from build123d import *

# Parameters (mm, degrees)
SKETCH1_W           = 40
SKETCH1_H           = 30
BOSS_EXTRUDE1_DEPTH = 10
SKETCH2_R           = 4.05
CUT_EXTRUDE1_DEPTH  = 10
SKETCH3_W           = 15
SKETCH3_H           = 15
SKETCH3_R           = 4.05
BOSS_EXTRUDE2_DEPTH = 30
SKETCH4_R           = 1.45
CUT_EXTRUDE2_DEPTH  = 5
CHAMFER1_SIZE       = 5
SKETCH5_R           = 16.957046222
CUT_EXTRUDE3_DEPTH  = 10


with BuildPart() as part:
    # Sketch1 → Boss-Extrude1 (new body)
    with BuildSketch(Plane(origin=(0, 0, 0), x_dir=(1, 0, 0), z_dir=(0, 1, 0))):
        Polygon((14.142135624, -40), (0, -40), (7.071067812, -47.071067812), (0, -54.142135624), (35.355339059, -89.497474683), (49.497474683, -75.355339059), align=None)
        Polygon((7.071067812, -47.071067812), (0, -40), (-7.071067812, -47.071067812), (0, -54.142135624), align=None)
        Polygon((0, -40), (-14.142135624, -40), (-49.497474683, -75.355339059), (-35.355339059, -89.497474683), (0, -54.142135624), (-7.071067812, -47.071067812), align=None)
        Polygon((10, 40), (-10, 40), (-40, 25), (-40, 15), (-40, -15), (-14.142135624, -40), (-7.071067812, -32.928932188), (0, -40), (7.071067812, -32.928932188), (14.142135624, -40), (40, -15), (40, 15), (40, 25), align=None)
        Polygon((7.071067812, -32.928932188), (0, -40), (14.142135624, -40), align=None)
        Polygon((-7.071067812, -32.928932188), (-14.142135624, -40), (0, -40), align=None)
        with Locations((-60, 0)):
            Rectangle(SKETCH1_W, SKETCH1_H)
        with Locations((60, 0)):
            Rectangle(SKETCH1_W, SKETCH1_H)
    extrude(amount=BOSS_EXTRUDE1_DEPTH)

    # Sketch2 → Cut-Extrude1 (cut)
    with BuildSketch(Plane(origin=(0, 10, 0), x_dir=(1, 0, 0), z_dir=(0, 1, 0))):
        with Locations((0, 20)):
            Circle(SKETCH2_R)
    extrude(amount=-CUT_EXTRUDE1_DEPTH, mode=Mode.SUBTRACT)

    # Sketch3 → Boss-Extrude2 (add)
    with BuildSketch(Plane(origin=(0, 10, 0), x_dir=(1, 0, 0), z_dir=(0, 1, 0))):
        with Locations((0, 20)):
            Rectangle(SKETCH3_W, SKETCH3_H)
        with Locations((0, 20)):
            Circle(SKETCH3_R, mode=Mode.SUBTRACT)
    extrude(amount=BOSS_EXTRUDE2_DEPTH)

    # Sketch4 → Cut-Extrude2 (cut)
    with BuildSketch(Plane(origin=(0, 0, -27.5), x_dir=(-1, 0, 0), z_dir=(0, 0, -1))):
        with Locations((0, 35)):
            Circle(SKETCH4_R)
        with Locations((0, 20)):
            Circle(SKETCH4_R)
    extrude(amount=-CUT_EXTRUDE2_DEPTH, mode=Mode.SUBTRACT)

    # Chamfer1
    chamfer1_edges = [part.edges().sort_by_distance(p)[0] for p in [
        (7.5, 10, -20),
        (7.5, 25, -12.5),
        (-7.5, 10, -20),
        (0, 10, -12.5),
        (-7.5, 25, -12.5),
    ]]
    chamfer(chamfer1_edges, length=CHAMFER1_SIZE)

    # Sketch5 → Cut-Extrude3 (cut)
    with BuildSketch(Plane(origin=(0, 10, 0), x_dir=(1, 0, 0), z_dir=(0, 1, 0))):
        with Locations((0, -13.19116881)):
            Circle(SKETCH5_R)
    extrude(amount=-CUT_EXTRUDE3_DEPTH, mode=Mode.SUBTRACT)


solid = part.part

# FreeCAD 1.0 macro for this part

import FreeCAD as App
import Part
import Sketcher


def edges_at(feature, points):
    """Names of the edges that pass closest to the given points."""
    edges = feature.Shape.Edges
    near = lambda p: min(range(len(edges)), key=lambda i: edges[i].distToShape(Part.Vertex(*p))[0])
    return sorted({f"Edge{near(p) + 1}" for p in points})


def add_polygon(sketch, points):
    """Adds a closed chain of lines whose ends are joined by coincident constraints."""
    first, n = sketch.GeometryCount, len(points)
    for a, b in zip(points, points[1:] + points[:1]):
        sketch.addGeometry(Part.LineSegment(App.Vector(*a, 0), App.Vector(*b, 0)), False)
    for i in range(n):
        sketch.addConstraint(Sketcher.Constraint("Coincident", first + i, 2, first + (i + 1) % n, 1))

doc = App.newDocument("Part")
body = doc.addObject("PartDesign::Body", "Body")

# Sketch on XZ plane
sketch1 = doc.addObject("Sketcher::SketchObject", "Sketch")
body.addObject(sketch1)
sketch1.AttachmentSupport = (doc.XZ_Plane, [""])
sketch1.MapMode = "FlatFace"
add_polygon(sketch1, [(-40, 15), (-14.142136, 40), (-49.497475, 75.355339), (-35.355339, 89.497475), (0, 54.142136), (35.355339, 89.497475), (49.497475, 75.355339), (14.142136, 40), (40, 15), (80, 15), (80, -15), (40, -15), (40, -25), (10, -40), (-10, -40), (-40, -25), (-40, -15), (-80, -15), (-80, 15)])  # lines 0-18
sketch1.addConstraint(Sketcher.Constraint("Horizontal", 8))
sketch1.addConstraint(Sketcher.Constraint("Vertical", 9))
sketch1.addConstraint(Sketcher.Constraint("Horizontal", 10))
sketch1.addConstraint(Sketcher.Constraint("Vertical", 11))
sketch1.addConstraint(Sketcher.Constraint("Horizontal", 13))
sketch1.addConstraint(Sketcher.Constraint("Vertical", 15))
sketch1.addConstraint(Sketcher.Constraint("Horizontal", 16))
sketch1.addConstraint(Sketcher.Constraint("Vertical", 17))
sketch1.addConstraint(Sketcher.Constraint("Horizontal", 18))
sketch1.addConstraint(Sketcher.Constraint("Symmetric", 7, 2, 15, 2, -1, 1))
sketch1.addConstraint(Sketcher.Constraint("Symmetric", 9, 2, 17, 2, -1, 1))
sketch1.addConstraint(Sketcher.Constraint("Symmetric", 2, 2, 4, 2, -2))
sketch1.addConstraint(Sketcher.Constraint("Symmetric", 1, 2, 5, 2, -2))
sketch1.addConstraint(Sketcher.Constraint("Symmetric", 0, 2, 6, 2, -2))
sketch1.addConstraint(Sketcher.Constraint("Symmetric", 11, 2, 14, 2, -2))
sketch1.addConstraint(Sketcher.Constraint("Symmetric", 7, 2, 18, 2, -2))
sketch1.addConstraint(Sketcher.Constraint("PointOnObject", 3, 2, -2))
sketch1.addConstraint(Sketcher.Constraint("Perpendicular", 1, 2))
sketch1.addConstraint(Sketcher.Constraint("Perpendicular", 2, 3))
sketch1.addConstraint(Sketcher.Constraint("Perpendicular", 3, 4))
sketch1.addConstraint(Sketcher.Constraint("Equal", 1, 3))
sketch1.addConstraint(Sketcher.Constraint("Equal", 12, 14))
sketch1.addConstraint(Sketcher.Constraint("DistanceX", 8, 1, 8, 2, 40.0))
sketch1.addConstraint(Sketcher.Constraint("DistanceX", 13, 2, 13, 1, 20.0))
sketch1.addConstraint(Sketcher.Constraint("DistanceY", 9, 2, 9, 1, 30.0))
sketch1.addConstraint(Sketcher.Constraint("DistanceY", 11, 2, 11, 1, 10.0))
sketch1.addConstraint(Sketcher.Constraint("Distance", 1, 50.0))
sketch1.addConstraint(Sketcher.Constraint("Distance", 2, 20.0))
sketch1.addConstraint(Sketcher.Constraint("DistanceY", -1, 1, 0, 2, 40.0))
sketch1.addConstraint(Sketcher.Constraint("DistanceX", -1, 1, 7, 2, 40.0))
sketch1.addConstraint(Sketcher.Constraint("DistanceY", 12, 2, -1, 1, 40.0))
pad1 = doc.addObject("PartDesign::Pad", "Pad")
body.addObject(pad1)
pad1.Profile = sketch1
pad1.Length = 10
pad1.Reversed = True

# Sketch on XZ plane
sketch2 = doc.addObject("Sketcher::SketchObject", "Sketch001")
body.addObject(sketch2)
sketch2.AttachmentSupport = (doc.XZ_Plane, [""])
sketch2.MapMode = "FlatFace"
sketch2.AttachmentOffset = App.Placement(App.Vector(0, 0, -10), App.Rotation())
sketch2.addGeometry(Part.Circle(App.Vector(0, -20, 0), App.Vector(0, 0, 1), 4.05), False)
sketch2.addConstraint(Sketcher.Constraint("PointOnObject", 0, 3, -2))
sketch2.addConstraint(Sketcher.Constraint("Diameter", 0, 8.1))
sketch2.addConstraint(Sketcher.Constraint("DistanceY", 0, 3, -1, 1, 20.0))
pocket1 = doc.addObject("PartDesign::Pocket", "Pocket")
body.addObject(pocket1)
pocket1.Profile = sketch2
pocket1.Length = 10
pocket1.Reversed = True

# Sketch on XZ plane
sketch3 = doc.addObject("Sketcher::SketchObject", "Sketch002")
body.addObject(sketch3)
sketch3.AttachmentSupport = (doc.XZ_Plane, [""])
sketch3.MapMode = "FlatFace"
sketch3.AttachmentOffset = App.Placement(App.Vector(0, 0, -10), App.Rotation())
add_polygon(sketch3, [(-7.5, -27.5), (-7.5, -12.5), (7.5, -12.5), (7.5, -27.5)])  # lines 0-3
sketch3.addGeometry(Part.Circle(App.Vector(0, -20, 0), App.Vector(0, 0, 1), 4.05), False)  # 4
sketch3.addConstraint(Sketcher.Constraint("Vertical", 0))
sketch3.addConstraint(Sketcher.Constraint("Horizontal", 1))
sketch3.addConstraint(Sketcher.Constraint("Vertical", 2))
sketch3.addConstraint(Sketcher.Constraint("Horizontal", 3))
sketch3.addConstraint(Sketcher.Constraint("PointOnObject", 4, 3, -2))
sketch3.addConstraint(Sketcher.Constraint("Equal", 3, 0))
sketch3.addConstraint(Sketcher.Constraint("Diameter", 4, 8.1))
sketch3.addConstraint(Sketcher.Constraint("DistanceX", 1, 1, 1, 2, 15.0))
sketch3.addConstraint(Sketcher.Constraint("DistanceY", 4, 3, -1, 1, 20.0))
sketch3.addConstraint(Sketcher.Constraint("DistanceX", 0, 2, -1, 1, 7.5))
sketch3.addConstraint(Sketcher.Constraint("DistanceY", 0, 2, -1, 1, 12.5))
pad2 = doc.addObject("PartDesign::Pad", "Pad001")
body.addObject(pad2)
pad2.Profile = sketch3
pad2.Length = 30
pad2.Reversed = True

# Sketch on XY plane
sketch4 = doc.addObject("Sketcher::SketchObject", "Sketch003")
body.addObject(sketch4)
sketch4.AttachmentSupport = (doc.XY_Plane, [""])
sketch4.MapMode = "FlatFace"
sketch4.AttachmentOffset = App.Placement(App.Vector(0, 0, -27.5), App.Rotation())
sketch4.addGeometry(Part.Circle(App.Vector(0, 35, 0), App.Vector(0, 0, 1), 1.45), False)
sketch4.addGeometry(Part.Circle(App.Vector(0, 20, 0), App.Vector(0, 0, 1), 1.45), False)
sketch4.addConstraint(Sketcher.Constraint("Equal", 0, 1))
sketch4.addConstraint(Sketcher.Constraint("PointOnObject", 0, 3, -2))
sketch4.addConstraint(Sketcher.Constraint("PointOnObject", 1, 3, -2))
sketch4.addConstraint(Sketcher.Constraint("Diameter", 0, 2.9))
sketch4.addConstraint(Sketcher.Constraint("DistanceY", -1, 1, 0, 3, 35.0))
sketch4.addConstraint(Sketcher.Constraint("DistanceY", -1, 1, 1, 3, 20.0))
pocket2 = doc.addObject("PartDesign::Pocket", "Pocket001")
body.addObject(pocket2)
pocket2.Profile = sketch4
pocket2.Length = 5
pocket2.Reversed = True
doc.recompute()

chamfer = doc.addObject("PartDesign::Chamfer", "Chamfer")
body.addObject(chamfer)
chamfer.Base = (pocket2, edges_at(pocket2, [
    (7.5, 10, -20),
    (7.5, 25, -12.5),
    (-7.5, 10, -20),
    (0, 10, -12.5),
    (-7.5, 25, -12.5),
]))
chamfer.Size = 5

# Sketch on XZ plane
sketch5 = doc.addObject("Sketcher::SketchObject", "Sketch004")
body.addObject(sketch5)
sketch5.AttachmentSupport = (doc.XZ_Plane, [""])
sketch5.MapMode = "FlatFace"
sketch5.AttachmentOffset = App.Placement(App.Vector(0, 0, -10), App.Rotation())
sketch5.addGeometry(Part.Circle(App.Vector(0, 13.191169, 0), App.Vector(0, 0, 1), 16.957046), False)
sketch5.addConstraint(Sketcher.Constraint("PointOnObject", 0, 3, -2))
sketch5.addConstraint(Sketcher.Constraint("Diameter", 0, 33.914092))
sketch5.addConstraint(Sketcher.Constraint("DistanceY", -1, 1, 0, 3, 13.191169))
pocket3 = doc.addObject("PartDesign::Pocket", "Pocket002")
body.addObject(pocket3)
pocket3.Profile = sketch5
pocket3.Length = 10
pocket3.Reversed = True

doc.recompute()
